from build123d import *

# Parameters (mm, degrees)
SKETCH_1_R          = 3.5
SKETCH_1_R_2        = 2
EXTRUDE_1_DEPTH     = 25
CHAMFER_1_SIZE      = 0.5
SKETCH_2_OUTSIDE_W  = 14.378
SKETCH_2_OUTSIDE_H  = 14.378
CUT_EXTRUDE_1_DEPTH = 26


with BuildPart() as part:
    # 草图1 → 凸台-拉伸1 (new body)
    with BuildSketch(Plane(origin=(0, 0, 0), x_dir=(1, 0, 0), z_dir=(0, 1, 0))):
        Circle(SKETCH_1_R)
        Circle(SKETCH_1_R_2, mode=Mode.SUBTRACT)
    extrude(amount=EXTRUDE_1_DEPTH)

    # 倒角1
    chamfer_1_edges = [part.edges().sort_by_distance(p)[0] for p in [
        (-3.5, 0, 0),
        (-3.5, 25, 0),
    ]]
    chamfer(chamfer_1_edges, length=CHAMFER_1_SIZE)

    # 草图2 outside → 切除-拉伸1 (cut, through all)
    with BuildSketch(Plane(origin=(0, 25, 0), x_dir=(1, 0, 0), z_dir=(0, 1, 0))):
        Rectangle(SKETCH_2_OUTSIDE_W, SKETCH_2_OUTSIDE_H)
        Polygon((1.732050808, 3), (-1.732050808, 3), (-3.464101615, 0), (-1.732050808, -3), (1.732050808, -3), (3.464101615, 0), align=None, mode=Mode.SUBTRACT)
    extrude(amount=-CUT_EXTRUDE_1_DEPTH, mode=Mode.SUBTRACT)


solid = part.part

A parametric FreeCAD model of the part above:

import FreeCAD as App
import Part
import Sketcher

V = App.Vector
Q = App.Units.Quantity


def edges_at(feature, points):
    """Names of the edges that pass closest to the given points."""
    edges = feature.Shape.Edges
    near = lambda p: min(range(len(edges)), key=lambda i: edges[i].distToShape(Part.Vertex(*p))[0])
    return sorted({f"Edge{near(p) + 1}" for p in points})

doc = App.newDocument("Part")
params = doc.addObject("Spreadsheet::Sheet", "Params")
for row, (alias, value) in enumerate([
    ("sketch1_diameter", "7 mm"),
    ("sketch1_diameter2", "4 mm"),
    ("pad1_length", "25 mm"),
    ("chamfer_size", "0.5 mm"),
], start=1):
    params.set(f"A{row}", alias)
    params.set(f"B{row}", "=" + value)
    params.setAlias(f"B{row}", alias)

body = doc.addObject("PartDesign::Body", "Body")

sketch1 = body.newObject("Sketcher::SketchObject", "Sketch")
sketch1.AttachmentSupport = (doc.getObject("XZ_Plane"), [""])
sketch1.MapMode = "FlatFace"
sketch1.addGeometry([
    Part.Circle(V(0, 0, 0), V(0, 0, 1), 3.5),
    Part.Circle(V(0, 0, 0), V(0, 0, 1), 2),
], False)
sketch1.addConstraint([
    Sketcher.Constraint("Coincident", 0, 3, -1, 1),
    Sketcher.Constraint("Coincident", 1, 3, -1, 1),
    Sketcher.Constraint("Diameter", 0, Q("7 mm")),
    Sketcher.Constraint("Diameter", 1, Q("4 mm")),
])
sketch1.setExpression("Constraints[2]", "Params.sketch1_diameter")
sketch1.setExpression("Constraints[3]", "Params.sketch1_diameter2")
pad1 = body.newObject("PartDesign::Pad", "Pad")
pad1.Profile = sketch1
pad1.setExpression("Length", "Params.pad1_length")
pad1.Reversed = True
doc.recompute()

chamfer = body.newObject("PartDesign::Chamfer", "Chamfer")
chamfer.Base = (pad1, edges_at(pad1, [(-3.5, 0, 0), (-3.5, 25, 0)]))
chamfer.setExpression("Size", "Params.chamfer_size")

sketch2 = body.newObject("Sketcher::SketchObject", "Sketch001")
sketch2.AttachmentSupport = (doc.getObject("XZ_Plane"), [""])
sketch2.MapMode = "FlatFace"
sketch2.AttachmentOffset = App.Placement(V(0, 0, -25), App.Rotation())
sketch2.addGeometry([
    Part.LineSegment(V(-7.2, -7.2, 0), V(-7.2, 7.2, 0)),
    Part.LineSegment(V(-7.2, 7.2, 0), V(7.2, 7.2, 0)),
    Part.LineSegment(V(7.2, 7.2, 0), V(7.2, -7.2, 0)),
    Part.LineSegment(V(7.2, -7.2, 0), V(-7.2, -7.2, 0)),
    Part.LineSegment(V(-1.7, -3, 0), V(1.7, -3, 0)),
    Part.LineSegment(V(1.7, -3, 0), V(3.5, 0, 0)),
    Part.LineSegment(V(3.5, 0, 0), V(1.7, 3, 0)),
    Part.LineSegment(V(1.7, 3, 0), V(-1.7, 3, 0)),
    Part.LineSegment(V(-1.7, 3, 0), V(-3.5, 0, 0)),
    Part.LineSegment(V(-3.5, 0, 0), V(-1.7, -3, 0)),
], False)
sketch2.addConstraint([
    Sketcher.Constraint("Coincident", 0, 2, 1, 1),
    Sketcher.Constraint("Coincident", 1, 2, 2, 1),
    Sketcher.Constraint("Coincident", 2, 2, 3, 1),
    Sketcher.Constraint("Coincident", 3, 2, 0, 1),
    Sketcher.Constraint("Coincident", 4, 2, 5, 1),
    Sketcher.Constraint("Coincident", 5, 2, 6, 1),
    Sketcher.Constraint("Coincident", 6, 2, 7, 1),
    Sketcher.Constraint("Coincident", 7, 2, 8, 1),
    Sketcher.Constraint("Coincident", 8, 2, 9, 1),
    Sketcher.Constraint("Coincident", 9, 2, 4, 1),
    Sketcher.Constraint("Vertical", 0),
    Sketcher.Constraint("Horizontal", 1),
    Sketcher.Constraint("Vertical", 2),
    Sketcher.Constraint("Horizontal", 3),
    Sketcher.Constraint("Horizontal", 4),
    Sketcher.Constraint("Horizontal", 7),
    Sketcher.Constraint("Symmetric", 0, 2, 2, 2, -1, 1),
    Sketcher.Constraint("Symmetric", 4, 2, 7, 2, -1, 1),
    Sketcher.Constraint("Symmetric", 5, 2, 8, 2, -1, 1),
    Sketcher.Constraint("PointOnObject", 5, 2, -1),
    Sketcher.Constraint("Parallel", 6, 9),
    Sketcher.Constraint("Vertical", 4, 2, 6, 2),
    Sketcher.Constraint("Equal", 3, 0),
    Sketcher.Constraint("Angle", 5, Q("60 deg")),
    Sketcher.Constraint("DistanceY", 4, 2, -1, 1, Q("3 mm")),
    Sketcher.Constraint("DistanceX", 1, 1, 1, 2, Q("14.378 mm")),
    Sketcher.Constraint("DistanceX", 4, 1, 4, 2, Q("3.464102 mm")),
])
pocket1 = body.newObject("PartDesign::Pocket", "Pocket")
pocket1.Profile = sketch2
pocket1.Type = "ThroughAll"
pocket1.Reversed = True

doc.recompute()
